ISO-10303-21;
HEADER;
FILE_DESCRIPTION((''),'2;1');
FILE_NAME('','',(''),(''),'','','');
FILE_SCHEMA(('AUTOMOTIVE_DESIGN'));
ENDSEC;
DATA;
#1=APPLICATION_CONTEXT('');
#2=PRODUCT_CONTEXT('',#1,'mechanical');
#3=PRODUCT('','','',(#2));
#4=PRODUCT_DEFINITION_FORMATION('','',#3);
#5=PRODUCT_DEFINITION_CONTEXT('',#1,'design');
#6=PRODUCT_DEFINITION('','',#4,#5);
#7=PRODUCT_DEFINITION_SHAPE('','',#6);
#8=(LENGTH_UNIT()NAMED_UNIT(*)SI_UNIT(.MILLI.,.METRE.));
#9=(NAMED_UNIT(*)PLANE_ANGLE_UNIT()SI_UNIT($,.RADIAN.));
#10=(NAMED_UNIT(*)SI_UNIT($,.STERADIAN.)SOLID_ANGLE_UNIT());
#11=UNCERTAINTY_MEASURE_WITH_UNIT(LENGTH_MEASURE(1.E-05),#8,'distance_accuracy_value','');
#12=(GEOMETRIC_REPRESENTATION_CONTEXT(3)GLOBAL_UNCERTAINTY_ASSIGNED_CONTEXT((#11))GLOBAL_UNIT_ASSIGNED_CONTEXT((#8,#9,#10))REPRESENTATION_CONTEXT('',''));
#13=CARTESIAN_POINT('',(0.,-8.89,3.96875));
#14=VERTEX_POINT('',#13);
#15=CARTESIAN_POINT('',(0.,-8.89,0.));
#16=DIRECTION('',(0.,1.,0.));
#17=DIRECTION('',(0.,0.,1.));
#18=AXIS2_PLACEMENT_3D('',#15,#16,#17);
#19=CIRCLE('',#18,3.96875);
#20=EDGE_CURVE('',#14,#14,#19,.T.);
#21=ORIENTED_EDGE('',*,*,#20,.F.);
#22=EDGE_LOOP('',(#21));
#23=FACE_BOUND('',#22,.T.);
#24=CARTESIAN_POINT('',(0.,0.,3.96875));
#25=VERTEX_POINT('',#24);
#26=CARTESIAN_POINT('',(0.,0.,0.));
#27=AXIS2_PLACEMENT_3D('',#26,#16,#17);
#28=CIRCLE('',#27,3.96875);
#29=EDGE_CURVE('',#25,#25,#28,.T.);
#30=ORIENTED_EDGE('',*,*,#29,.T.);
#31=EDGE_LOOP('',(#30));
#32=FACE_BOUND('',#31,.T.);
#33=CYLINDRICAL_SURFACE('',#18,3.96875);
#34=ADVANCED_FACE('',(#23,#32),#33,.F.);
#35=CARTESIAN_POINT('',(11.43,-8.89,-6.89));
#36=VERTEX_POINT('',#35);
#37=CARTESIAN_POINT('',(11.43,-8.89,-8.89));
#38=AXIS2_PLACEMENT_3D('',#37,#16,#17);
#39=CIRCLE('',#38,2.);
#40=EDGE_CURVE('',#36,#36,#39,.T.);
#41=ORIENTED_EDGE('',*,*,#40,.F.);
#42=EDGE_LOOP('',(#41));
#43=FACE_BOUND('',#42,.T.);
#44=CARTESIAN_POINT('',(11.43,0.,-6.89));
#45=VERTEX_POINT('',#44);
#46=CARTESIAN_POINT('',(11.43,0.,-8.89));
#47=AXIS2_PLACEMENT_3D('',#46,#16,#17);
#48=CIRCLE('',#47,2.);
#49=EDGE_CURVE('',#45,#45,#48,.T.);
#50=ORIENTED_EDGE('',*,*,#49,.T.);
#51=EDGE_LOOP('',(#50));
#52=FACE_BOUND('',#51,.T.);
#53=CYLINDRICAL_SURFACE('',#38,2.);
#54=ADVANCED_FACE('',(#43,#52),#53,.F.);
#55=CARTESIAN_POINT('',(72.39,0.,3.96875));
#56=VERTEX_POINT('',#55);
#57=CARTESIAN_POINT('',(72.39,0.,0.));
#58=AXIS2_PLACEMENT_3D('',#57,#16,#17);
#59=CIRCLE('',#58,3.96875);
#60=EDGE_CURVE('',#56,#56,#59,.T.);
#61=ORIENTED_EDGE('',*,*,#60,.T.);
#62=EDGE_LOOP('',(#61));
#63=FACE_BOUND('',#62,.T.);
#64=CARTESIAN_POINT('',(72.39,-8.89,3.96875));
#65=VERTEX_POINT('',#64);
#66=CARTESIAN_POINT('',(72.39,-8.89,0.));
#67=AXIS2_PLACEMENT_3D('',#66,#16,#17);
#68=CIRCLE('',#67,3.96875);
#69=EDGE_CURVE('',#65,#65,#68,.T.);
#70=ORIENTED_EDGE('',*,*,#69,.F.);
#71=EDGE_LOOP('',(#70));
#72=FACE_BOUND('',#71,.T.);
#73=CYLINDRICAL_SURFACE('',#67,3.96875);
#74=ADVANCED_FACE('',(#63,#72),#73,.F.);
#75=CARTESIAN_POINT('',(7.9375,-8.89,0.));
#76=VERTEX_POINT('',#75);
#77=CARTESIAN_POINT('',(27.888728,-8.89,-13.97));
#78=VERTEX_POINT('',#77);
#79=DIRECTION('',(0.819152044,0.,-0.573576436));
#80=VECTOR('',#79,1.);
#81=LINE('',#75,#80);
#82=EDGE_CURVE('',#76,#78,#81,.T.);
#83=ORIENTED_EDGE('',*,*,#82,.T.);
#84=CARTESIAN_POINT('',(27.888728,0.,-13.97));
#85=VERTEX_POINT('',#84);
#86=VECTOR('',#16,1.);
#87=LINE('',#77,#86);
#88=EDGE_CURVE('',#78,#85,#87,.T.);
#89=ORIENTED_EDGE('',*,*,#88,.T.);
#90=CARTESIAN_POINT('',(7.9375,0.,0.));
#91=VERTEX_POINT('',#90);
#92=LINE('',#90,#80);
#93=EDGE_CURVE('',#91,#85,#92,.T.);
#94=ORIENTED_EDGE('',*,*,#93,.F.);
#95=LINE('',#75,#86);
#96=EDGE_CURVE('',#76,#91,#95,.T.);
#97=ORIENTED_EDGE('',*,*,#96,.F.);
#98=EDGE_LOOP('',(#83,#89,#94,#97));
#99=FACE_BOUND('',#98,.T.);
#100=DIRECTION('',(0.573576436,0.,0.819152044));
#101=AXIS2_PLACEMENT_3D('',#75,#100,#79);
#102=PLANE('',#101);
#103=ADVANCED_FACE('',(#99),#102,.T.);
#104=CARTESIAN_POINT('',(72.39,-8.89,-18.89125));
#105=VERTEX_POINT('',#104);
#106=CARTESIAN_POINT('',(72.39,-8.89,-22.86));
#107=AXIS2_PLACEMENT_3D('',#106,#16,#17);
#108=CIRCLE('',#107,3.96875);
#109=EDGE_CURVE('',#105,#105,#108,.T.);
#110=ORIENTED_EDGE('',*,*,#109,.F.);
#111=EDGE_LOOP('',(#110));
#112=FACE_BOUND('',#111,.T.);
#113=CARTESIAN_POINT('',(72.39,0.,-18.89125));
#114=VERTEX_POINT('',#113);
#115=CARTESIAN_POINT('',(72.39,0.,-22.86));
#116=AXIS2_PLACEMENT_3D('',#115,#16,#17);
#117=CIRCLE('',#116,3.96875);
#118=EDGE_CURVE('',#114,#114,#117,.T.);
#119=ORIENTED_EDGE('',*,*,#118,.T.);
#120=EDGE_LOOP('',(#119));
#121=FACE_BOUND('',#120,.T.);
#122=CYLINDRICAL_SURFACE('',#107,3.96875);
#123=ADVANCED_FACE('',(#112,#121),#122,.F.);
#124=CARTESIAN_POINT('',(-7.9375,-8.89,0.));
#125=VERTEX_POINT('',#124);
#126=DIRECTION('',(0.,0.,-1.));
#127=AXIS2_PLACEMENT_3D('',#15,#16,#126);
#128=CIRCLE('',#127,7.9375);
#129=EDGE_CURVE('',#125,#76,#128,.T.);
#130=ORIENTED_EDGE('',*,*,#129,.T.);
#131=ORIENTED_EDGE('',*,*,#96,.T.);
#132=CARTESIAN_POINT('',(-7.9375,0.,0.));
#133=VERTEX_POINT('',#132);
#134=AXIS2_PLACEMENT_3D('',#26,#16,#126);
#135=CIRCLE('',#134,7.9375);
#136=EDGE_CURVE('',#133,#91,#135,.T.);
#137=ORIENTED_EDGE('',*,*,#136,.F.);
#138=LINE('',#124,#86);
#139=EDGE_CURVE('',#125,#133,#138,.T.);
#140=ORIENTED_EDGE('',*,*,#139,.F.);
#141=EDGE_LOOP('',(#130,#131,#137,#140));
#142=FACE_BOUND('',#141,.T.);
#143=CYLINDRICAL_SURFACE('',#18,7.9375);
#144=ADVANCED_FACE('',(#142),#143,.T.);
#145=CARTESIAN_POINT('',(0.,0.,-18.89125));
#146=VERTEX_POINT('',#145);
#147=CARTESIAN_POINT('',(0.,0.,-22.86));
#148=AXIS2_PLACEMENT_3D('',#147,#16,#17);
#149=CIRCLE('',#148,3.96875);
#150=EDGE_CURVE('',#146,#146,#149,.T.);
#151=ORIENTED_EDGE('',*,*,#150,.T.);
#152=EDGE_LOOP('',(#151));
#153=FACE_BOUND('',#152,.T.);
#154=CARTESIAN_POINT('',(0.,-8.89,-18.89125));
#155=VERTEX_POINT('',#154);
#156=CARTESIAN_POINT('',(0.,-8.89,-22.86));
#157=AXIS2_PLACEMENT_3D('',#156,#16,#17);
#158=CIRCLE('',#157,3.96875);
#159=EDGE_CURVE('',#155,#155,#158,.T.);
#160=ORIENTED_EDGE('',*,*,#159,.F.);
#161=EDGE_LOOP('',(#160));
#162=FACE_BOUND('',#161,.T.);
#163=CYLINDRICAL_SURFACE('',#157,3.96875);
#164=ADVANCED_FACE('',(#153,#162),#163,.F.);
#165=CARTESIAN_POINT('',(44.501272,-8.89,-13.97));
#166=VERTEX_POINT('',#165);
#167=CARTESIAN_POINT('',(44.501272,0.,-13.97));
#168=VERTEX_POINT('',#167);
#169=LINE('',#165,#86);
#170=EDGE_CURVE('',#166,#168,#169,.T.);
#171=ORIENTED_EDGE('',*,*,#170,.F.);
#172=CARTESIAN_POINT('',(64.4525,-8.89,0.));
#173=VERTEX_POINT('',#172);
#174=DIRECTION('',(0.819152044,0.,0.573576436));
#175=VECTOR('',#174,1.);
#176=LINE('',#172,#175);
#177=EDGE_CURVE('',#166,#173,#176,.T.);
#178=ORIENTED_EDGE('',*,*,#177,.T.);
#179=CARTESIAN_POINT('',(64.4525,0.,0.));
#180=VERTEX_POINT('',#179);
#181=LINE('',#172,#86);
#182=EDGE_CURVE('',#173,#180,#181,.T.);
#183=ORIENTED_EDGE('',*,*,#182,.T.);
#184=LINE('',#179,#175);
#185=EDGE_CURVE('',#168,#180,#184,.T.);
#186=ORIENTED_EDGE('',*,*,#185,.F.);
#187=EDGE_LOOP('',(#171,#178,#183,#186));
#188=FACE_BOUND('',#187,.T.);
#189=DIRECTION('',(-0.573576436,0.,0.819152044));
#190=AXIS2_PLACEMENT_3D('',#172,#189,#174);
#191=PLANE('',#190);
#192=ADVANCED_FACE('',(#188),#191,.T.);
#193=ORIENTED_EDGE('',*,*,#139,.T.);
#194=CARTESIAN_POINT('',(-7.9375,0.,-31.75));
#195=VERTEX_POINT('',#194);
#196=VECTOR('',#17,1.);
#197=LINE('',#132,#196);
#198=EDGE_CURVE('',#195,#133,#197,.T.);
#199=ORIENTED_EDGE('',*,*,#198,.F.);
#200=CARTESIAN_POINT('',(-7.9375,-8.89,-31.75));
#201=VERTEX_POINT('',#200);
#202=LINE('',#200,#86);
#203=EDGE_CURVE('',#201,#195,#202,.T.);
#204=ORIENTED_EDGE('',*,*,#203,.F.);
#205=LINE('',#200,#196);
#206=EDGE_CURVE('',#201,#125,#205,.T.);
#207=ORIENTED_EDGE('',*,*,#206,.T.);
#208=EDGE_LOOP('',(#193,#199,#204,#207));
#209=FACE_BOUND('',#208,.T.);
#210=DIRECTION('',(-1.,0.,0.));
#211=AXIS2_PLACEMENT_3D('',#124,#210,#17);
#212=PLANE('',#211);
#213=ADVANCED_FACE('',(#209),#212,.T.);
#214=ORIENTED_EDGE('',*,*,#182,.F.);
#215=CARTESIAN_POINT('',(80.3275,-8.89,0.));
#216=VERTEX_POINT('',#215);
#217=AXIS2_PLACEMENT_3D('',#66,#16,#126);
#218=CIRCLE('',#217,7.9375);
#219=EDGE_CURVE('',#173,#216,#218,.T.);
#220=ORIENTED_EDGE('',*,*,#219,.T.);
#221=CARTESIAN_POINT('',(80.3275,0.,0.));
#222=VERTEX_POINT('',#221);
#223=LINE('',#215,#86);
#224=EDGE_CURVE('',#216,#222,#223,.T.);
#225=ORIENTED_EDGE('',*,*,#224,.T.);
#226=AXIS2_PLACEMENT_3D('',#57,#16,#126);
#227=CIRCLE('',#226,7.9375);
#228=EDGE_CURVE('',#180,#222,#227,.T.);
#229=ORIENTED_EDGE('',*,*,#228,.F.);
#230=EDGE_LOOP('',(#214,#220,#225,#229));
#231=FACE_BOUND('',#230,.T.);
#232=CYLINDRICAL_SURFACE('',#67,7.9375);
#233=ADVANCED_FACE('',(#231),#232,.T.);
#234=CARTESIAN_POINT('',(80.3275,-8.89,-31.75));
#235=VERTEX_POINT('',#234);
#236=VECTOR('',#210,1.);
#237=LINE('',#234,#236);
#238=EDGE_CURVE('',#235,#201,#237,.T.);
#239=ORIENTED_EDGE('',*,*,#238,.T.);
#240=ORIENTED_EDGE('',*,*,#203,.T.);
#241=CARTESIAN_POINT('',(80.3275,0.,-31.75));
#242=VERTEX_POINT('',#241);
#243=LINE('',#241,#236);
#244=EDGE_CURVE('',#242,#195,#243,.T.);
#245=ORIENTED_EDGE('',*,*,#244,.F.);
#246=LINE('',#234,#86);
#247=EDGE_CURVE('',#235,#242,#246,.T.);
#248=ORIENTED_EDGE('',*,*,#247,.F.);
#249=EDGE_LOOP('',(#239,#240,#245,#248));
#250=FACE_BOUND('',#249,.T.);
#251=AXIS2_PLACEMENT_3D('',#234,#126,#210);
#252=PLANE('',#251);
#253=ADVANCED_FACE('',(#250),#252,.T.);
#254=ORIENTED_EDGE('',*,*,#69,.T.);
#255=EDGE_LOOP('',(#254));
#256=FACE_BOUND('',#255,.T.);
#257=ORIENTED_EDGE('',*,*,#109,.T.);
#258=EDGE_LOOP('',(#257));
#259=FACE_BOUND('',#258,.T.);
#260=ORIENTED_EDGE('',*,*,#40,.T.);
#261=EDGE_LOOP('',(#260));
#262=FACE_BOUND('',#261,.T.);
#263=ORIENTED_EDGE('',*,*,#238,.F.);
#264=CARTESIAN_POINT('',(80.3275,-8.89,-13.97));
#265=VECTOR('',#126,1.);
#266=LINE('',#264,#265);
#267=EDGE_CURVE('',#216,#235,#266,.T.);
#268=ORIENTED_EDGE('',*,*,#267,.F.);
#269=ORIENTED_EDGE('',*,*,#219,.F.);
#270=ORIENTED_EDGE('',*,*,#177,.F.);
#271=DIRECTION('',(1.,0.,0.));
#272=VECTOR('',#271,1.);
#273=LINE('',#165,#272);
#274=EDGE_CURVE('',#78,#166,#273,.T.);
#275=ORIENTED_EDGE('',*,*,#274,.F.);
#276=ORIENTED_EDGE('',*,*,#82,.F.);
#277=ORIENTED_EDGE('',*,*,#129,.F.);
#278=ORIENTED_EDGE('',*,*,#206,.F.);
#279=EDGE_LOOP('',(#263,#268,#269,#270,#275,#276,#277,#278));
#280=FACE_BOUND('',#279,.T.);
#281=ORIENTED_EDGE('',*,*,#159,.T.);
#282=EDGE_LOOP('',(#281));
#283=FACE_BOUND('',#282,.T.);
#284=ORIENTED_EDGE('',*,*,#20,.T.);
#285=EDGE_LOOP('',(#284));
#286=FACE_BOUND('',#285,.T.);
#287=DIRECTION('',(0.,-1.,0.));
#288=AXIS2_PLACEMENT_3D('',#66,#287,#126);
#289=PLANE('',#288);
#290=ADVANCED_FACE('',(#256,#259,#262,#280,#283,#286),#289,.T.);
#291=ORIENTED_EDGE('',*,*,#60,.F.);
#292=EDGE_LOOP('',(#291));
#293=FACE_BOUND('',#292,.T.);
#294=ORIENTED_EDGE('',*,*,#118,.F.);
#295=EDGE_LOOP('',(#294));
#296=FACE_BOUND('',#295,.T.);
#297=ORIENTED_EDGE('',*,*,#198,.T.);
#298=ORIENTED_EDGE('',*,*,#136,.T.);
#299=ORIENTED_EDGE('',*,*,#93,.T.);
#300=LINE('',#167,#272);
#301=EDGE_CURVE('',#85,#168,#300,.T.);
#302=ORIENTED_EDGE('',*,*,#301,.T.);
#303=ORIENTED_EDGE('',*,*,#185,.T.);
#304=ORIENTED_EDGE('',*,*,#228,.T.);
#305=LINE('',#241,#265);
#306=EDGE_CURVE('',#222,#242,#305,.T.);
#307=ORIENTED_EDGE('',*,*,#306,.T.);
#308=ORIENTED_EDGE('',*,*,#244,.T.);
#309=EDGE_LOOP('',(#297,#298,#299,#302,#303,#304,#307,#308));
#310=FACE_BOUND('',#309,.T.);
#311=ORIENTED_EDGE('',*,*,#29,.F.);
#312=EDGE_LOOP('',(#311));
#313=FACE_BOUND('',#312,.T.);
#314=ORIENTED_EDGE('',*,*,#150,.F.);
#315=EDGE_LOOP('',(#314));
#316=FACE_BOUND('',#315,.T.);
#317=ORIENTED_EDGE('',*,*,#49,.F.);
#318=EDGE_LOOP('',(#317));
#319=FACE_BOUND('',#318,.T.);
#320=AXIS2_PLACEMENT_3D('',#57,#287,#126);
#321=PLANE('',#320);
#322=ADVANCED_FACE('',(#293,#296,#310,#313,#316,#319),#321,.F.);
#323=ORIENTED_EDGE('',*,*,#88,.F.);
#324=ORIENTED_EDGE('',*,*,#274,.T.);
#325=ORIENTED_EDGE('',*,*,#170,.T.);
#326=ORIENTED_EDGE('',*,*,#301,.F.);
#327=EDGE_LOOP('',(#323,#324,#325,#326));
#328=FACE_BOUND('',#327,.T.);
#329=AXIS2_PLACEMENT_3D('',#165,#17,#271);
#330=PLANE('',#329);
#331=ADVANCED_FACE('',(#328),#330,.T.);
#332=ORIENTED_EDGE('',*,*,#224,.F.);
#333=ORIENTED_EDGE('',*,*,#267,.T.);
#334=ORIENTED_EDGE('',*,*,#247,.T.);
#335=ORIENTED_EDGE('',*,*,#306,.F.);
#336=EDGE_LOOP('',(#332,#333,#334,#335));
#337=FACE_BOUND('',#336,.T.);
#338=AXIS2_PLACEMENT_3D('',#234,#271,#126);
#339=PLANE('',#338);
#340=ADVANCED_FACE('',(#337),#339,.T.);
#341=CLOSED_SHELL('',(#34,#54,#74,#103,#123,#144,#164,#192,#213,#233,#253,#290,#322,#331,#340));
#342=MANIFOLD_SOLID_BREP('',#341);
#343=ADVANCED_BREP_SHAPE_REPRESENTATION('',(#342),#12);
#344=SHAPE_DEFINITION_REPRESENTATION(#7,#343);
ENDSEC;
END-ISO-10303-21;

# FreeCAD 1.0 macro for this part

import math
import FreeCAD as App
import Part
import Sketcher

V = App.Vector
Q = App.Units.Quantity

doc = App.newDocument("Part")
params = doc.addObject("Spreadsheet::Sheet", "Params")
for row, (alias, value) in enumerate([
    ("sketch1_diameter", "0.3125 in"),
    ("sketch1_radius", "0.3125 in"),
    ("sketch1_height", "1.25 in"),
    ("sketch1_width", "3.475 in"),
    ("pad1_length", "0.35 in"),
], start=1):
    params.set(f"A{row}", alias)
    params.set(f"B{row}", "=" + value)
    params.setAlias(f"B{row}", alias)

body = doc.addObject("PartDesign::Body", "Body")

# Sketch on XZ plane
sketch1 = body.newObject("Sketcher::SketchObject", "Sketch")
sketch1.AttachmentSupport = (doc.getObject("XZ_Plane"), [""])
sketch1.MapMode = "FlatFace"
sketch1.addGeometry([
    Part.LineSegment(V(80.3, -31.8, 0), V(-7.9, -31.8, 0)),  # 0
    Part.LineSegment(V(-7.9, -31.8, 0), V(-7.9, 0, 0)),  # 1
    Part.ArcOfCircle(Part.Circle(V(0, 0, 0), V(0, 0, 1), 7.9), math.radians(0), math.radians(180)),  # 2
    Part.LineSegment(V(7.9, 0, 0), V(27.9, -14, 0)),  # 3
    Part.LineSegment(V(27.9, -14, 0), V(44.5, -14, 0)),  # 4
    Part.LineSegment(V(44.5, -14, 0), V(64.5, 0, 0)),  # 5
    Part.ArcOfCircle(Part.Circle(V(72.4, 0, 0), V(0, 0, 1), 7.9), math.radians(0), math.radians(180)),  # 6
    Part.LineSegment(V(80.3, 0, 0), V(80.3, -31.8, 0)),  # 7
    Part.Circle(V(0, 0, 0), V(0, 0, 1), 4),  # 8
    Part.Circle(V(11.4, -8.9, 0), V(0, 0, 1), 2),  # 9
    Part.Circle(V(72.4, 0, 0), V(0, 0, 1), 4),  # 10
    Part.Circle(V(0, -22.9, 0), V(0, 0, 1), 4),  # 11
    Part.Circle(V(72.4, -22.9, 0), V(0, 0, 1), 4),  # 12
], False)
sketch1.addConstraint([
    Sketcher.Constraint("Coincident", 0, 2, 1, 1),
    Sketcher.Constraint("Tangent", 1, 2, 2, 2),
    Sketcher.Constraint("Coincident", 2, 1, 3, 1),
    Sketcher.Constraint("Coincident", 3, 2, 4, 1),
    Sketcher.Constraint("Coincident", 4, 2, 5, 1),
    Sketcher.Constraint("Coincident", 5, 2, 6, 2),
    Sketcher.Constraint("Tangent", 6, 1, 7, 1),
    Sketcher.Constraint("Coincident", 7, 2, 0, 1),
    Sketcher.Constraint("Horizontal", 0),
    Sketcher.Constraint("Vertical", 1),
    Sketcher.Constraint("Horizontal", 4),
    Sketcher.Constraint("Vertical", 7),
    Sketcher.Constraint("Coincident", 2, 3, -1, 1),
    Sketcher.Constraint("Coincident", 8, 3, -1, 1),
    Sketcher.Constraint("Coincident", 10, 3, 6, 3),
    Sketcher.Constraint("Equal", 2, 6),
    Sketcher.Constraint("Equal", 8, 10),
    Sketcher.Constraint("Equal", 10, 11),
    Sketcher.Constraint("Equal", 11, 12),
    Sketcher.Constraint("PointOnObject", 6, 3, -1),
    Sketcher.Constraint("PointOnObject", 11, 3, -2),
    Sketcher.Constraint("PointOnObject", 2, 1, -1),
    Sketcher.Constraint("PointOnObject", 5, 2, -1),
    Sketcher.Constraint("Horizontal", 11, 3, 12, 3),
    Sketcher.Constraint("Vertical", 10, 3, 12, 3),
    Sketcher.Constraint("Equal", 3, 5),
    Sketcher.Constraint("Diameter", 8, Q("0.3125 in")),
    Sketcher.Constraint("Angle", 3, Q("-35 deg")),
    Sketcher.Constraint("Radius", 2, Q("0.3125 in")),
    Sketcher.Constraint("DistanceY", 1, 1, 1, 2, Q("1.25 in")),
    Sketcher.Constraint("DistanceY", 11, 3, -1, 1, Q("0.9 in")),
    Sketcher.Constraint("DistanceX", 9, 3, 6, 3, Q("2.4 in")),
    Sketcher.Constraint("DistanceY", 0, 2, 9, 3, Q("0.9 in")),
    Sketcher.Constraint("DistanceY", 3, 2, 9, 3, Q("0.2 in")),
    Sketcher.Constraint("Diameter", 9, 4.0),
    Sketcher.Constraint("DistanceX", 0, 2, 0, 1, Q("3.475 in")),
])
sketch1.setExpression("Constraints[26]", "Params.sketch1_diameter")
sketch1.setExpression("Constraints[28]", "Params.sketch1_radius")
sketch1.setExpression("Constraints[29]", "Params.sketch1_height")
sketch1.setExpression("Constraints[35]", "Params.sketch1_width")
pad1 = body.newObject("PartDesign::Pad", "Pad")
pad1.Profile = sketch1
pad1.setExpression("Length", "Params.pad1_length")

doc.recompute()
